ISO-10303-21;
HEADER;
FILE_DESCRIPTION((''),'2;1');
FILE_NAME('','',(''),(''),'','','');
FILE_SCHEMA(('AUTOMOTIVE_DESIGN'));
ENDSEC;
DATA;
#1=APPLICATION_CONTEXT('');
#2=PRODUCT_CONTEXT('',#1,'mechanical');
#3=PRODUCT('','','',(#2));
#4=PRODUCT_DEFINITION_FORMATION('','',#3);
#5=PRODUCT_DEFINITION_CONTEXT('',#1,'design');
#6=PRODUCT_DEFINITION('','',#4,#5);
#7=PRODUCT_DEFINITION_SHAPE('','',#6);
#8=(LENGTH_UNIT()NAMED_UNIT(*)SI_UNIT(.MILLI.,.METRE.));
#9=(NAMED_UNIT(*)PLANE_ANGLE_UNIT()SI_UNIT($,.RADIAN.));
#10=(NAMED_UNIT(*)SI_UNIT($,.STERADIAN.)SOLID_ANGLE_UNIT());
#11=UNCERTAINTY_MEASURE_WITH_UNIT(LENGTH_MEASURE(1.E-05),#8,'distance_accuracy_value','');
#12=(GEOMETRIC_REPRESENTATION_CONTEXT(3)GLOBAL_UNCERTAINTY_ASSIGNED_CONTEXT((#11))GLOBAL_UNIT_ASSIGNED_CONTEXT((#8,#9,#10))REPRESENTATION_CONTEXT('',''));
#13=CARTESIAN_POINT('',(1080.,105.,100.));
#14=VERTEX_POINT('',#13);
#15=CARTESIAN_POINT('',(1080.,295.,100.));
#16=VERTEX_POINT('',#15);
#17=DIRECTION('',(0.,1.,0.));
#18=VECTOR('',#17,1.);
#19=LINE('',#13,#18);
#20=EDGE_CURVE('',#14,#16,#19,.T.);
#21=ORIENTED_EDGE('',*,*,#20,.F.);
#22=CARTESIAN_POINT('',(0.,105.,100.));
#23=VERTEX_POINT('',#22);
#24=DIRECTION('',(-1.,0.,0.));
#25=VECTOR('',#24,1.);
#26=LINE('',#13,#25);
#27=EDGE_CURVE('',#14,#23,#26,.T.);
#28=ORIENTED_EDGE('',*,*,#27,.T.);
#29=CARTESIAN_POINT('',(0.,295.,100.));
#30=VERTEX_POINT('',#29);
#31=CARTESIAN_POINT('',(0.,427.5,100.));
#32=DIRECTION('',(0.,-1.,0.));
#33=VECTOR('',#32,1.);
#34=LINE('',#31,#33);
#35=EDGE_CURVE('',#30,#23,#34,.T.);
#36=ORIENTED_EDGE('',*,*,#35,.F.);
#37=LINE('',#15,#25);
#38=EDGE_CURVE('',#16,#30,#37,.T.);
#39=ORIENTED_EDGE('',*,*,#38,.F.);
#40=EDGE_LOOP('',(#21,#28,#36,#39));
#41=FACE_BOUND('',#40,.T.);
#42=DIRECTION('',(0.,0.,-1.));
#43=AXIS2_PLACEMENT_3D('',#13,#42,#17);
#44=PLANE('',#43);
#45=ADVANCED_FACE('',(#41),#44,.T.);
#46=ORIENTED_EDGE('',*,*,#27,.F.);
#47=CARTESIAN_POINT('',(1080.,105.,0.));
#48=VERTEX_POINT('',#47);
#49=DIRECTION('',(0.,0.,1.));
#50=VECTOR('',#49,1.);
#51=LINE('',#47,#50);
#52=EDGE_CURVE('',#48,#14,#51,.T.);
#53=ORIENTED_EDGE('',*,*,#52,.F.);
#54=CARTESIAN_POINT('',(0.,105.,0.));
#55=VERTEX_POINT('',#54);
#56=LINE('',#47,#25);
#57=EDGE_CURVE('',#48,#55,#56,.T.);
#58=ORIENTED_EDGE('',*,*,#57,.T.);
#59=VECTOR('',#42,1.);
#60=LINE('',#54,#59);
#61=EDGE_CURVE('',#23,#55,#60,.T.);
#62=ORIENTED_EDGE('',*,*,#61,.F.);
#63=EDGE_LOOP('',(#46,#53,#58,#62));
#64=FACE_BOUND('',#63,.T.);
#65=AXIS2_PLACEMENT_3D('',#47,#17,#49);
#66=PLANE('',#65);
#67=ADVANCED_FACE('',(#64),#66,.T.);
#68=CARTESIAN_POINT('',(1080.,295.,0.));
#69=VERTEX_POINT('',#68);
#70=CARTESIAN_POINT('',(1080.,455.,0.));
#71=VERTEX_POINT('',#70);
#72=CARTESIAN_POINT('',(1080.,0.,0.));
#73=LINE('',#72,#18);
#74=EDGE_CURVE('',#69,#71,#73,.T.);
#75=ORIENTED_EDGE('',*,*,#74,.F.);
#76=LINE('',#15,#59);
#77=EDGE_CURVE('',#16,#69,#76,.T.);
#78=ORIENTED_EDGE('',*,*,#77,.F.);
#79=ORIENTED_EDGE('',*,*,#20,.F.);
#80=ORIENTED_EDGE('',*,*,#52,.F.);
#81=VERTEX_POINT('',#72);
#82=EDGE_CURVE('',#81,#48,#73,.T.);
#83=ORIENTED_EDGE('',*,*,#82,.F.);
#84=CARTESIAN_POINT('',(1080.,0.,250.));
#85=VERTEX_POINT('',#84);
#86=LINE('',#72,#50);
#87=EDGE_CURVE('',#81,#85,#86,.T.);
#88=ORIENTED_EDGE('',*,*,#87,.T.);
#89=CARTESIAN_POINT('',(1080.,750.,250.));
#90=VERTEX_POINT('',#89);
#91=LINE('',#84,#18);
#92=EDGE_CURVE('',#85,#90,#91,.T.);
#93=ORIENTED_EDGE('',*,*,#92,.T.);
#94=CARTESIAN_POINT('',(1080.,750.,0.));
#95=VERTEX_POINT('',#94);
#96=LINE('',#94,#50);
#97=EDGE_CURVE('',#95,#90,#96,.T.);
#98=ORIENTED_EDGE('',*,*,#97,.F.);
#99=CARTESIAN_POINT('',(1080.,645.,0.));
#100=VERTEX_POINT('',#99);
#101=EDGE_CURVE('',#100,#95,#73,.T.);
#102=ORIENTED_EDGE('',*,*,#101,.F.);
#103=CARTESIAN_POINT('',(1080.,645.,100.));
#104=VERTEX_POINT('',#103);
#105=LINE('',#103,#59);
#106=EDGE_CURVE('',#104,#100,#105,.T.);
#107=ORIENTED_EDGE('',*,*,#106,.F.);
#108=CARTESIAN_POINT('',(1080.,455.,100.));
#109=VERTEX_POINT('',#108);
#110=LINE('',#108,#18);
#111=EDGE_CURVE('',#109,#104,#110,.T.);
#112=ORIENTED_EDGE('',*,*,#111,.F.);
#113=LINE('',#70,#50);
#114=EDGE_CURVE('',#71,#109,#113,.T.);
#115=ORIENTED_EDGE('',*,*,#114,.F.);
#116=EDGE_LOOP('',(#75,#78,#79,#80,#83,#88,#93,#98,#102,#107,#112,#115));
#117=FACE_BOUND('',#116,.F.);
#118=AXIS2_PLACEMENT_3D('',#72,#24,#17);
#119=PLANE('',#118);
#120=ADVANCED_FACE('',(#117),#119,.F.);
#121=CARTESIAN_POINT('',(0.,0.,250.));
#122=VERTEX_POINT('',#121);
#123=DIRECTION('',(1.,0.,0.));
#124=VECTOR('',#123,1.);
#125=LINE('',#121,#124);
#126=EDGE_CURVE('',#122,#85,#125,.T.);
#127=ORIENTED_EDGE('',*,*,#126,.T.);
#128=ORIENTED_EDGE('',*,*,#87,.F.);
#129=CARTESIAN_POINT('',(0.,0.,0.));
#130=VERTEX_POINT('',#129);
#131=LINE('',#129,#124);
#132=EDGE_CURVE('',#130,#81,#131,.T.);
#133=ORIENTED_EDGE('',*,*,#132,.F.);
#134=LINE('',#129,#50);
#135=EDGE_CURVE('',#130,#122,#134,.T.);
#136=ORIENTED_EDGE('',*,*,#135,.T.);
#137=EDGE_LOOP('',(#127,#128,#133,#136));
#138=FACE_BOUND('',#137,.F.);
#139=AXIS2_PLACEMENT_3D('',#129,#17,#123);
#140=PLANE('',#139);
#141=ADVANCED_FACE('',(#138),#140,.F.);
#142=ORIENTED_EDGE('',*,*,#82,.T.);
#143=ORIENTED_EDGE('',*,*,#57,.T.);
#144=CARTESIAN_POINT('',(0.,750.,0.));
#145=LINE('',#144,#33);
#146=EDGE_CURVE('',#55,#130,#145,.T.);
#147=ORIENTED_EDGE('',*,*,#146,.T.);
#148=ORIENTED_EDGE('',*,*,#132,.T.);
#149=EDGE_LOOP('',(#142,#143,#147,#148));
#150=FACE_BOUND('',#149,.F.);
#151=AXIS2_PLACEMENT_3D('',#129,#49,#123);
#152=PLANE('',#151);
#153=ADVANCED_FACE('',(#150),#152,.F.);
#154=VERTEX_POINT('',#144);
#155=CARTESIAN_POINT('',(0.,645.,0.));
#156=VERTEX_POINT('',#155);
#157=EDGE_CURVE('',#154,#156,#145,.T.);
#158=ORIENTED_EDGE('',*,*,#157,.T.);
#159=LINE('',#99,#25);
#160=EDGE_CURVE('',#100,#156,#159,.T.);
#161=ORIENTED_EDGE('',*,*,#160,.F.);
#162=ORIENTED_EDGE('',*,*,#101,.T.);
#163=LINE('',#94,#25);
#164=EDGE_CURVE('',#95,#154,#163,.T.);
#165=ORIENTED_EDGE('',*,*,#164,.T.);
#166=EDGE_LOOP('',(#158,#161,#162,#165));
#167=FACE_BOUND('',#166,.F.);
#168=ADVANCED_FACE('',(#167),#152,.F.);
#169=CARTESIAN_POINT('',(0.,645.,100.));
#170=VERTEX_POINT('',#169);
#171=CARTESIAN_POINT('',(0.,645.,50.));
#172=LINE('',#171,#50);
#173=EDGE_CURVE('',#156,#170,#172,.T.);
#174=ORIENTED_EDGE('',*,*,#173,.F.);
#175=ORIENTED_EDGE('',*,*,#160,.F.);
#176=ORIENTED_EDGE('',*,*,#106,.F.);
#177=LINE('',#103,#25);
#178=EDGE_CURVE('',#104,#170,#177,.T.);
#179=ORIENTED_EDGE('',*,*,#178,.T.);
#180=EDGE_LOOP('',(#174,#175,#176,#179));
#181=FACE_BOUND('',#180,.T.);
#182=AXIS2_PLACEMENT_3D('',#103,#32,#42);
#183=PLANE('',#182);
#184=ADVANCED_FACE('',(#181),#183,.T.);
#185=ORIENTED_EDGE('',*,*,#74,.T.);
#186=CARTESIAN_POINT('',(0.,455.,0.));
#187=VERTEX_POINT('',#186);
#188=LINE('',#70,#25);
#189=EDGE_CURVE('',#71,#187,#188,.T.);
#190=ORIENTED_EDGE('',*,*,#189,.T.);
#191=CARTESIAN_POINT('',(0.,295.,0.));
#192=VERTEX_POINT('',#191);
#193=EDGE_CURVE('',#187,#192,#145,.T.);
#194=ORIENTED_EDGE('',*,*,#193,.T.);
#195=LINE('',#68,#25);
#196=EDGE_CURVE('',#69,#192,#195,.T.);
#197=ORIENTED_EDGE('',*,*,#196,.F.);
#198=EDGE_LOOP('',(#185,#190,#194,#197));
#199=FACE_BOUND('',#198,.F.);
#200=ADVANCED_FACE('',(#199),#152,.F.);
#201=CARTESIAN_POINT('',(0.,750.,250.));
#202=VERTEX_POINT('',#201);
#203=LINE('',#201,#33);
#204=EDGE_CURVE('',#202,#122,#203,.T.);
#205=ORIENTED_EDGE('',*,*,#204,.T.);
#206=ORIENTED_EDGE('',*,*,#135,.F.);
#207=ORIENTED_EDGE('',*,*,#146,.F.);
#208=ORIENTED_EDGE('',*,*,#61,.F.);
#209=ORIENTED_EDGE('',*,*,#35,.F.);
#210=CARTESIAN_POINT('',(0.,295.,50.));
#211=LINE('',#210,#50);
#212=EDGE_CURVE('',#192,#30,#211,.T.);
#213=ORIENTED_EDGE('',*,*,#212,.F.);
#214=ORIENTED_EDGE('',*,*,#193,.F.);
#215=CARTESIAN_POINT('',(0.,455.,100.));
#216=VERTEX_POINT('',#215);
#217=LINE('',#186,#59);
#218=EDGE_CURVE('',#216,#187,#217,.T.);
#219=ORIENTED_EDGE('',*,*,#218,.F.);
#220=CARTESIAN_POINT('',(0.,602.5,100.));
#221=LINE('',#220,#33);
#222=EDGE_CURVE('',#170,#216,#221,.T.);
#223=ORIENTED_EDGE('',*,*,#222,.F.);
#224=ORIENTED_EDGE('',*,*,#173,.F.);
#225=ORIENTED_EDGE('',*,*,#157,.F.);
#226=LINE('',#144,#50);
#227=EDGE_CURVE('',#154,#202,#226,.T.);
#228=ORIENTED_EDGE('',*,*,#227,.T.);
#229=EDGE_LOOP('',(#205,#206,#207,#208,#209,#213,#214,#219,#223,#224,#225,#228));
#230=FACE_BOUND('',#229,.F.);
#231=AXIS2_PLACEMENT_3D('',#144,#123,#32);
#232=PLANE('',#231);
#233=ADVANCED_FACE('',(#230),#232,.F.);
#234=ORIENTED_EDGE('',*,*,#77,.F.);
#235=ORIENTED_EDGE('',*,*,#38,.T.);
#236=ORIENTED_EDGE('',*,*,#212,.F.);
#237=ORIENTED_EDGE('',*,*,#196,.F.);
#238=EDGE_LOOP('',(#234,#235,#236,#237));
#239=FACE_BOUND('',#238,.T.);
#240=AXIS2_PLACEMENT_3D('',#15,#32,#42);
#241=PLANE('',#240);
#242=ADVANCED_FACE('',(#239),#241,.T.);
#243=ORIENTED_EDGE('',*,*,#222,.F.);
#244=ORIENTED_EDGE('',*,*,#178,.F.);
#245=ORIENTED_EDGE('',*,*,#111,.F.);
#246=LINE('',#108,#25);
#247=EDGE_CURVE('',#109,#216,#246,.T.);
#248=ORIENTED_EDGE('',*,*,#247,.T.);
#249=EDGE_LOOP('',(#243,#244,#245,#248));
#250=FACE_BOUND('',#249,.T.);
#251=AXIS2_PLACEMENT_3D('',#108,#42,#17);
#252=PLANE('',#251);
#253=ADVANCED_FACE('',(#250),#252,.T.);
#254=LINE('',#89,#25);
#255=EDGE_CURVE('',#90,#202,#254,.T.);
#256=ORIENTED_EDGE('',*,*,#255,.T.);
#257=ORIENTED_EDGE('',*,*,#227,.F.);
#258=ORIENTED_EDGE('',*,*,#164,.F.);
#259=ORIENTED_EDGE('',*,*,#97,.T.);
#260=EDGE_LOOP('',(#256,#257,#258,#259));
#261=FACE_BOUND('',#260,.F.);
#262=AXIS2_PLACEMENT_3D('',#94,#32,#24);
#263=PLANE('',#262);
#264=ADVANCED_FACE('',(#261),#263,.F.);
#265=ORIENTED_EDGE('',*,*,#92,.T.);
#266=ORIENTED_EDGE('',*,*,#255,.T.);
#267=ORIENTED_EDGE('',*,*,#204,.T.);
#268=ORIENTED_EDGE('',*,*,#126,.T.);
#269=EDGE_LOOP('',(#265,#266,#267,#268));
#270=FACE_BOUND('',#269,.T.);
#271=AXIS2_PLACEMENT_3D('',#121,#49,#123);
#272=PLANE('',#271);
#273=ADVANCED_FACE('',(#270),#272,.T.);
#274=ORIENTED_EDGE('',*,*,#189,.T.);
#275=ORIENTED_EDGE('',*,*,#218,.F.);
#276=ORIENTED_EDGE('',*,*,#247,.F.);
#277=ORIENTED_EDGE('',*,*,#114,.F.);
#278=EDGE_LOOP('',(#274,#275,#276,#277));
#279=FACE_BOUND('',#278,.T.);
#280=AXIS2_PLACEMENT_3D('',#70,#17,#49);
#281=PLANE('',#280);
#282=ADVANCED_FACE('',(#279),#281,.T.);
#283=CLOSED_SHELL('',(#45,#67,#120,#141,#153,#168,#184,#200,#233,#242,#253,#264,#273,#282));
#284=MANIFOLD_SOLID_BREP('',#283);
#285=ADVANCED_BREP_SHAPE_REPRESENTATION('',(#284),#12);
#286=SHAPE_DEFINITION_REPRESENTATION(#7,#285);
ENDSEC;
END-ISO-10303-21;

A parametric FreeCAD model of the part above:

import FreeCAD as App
import Part
import Sketcher
Q = App.Units.Quantity

doc = App.newDocument("Part")
body = doc.addObject("PartDesign::Body", "Body")

# Sketch on XY plane
sketch1 = body.newObject("Sketcher::SketchObject", "Sketch")
sketch1.AttachmentSupport = (doc.getObject("XY_Plane"), [""])
sketch1.MapMode = "FlatFace"
sketch1.addGeometry(Part.LineSegment(App.Vector(0, 750, 0), App.Vector(0, 0, 0)), False)
sketch1.addGeometry(Part.LineSegment(App.Vector(0, 0, 0), App.Vector(1080, 0, 0)), False)
sketch1.addGeometry(Part.LineSegment(App.Vector(1080, 0, 0), App.Vector(1080, 750, 0)), False)
sketch1.addGeometry(Part.LineSegment(App.Vector(1080, 750, 0), App.Vector(0, 750, 0)), False)
sketch1.addConstraint(Sketcher.Constraint("Coincident", 0, 2, 1, 1))
sketch1.addConstraint(Sketcher.Constraint("Coincident", 1, 2, 2, 1))
sketch1.addConstraint(Sketcher.Constraint("Coincident", 2, 2, 3, 1))
sketch1.addConstraint(Sketcher.Constraint("Coincident", 3, 2, 0, 1))
sketch1.addConstraint(Sketcher.Constraint("Vertical", 0))
sketch1.addConstraint(Sketcher.Constraint("Horizontal", 1))
sketch1.addConstraint(Sketcher.Constraint("Vertical", 2))
sketch1.addConstraint(Sketcher.Constraint("Horizontal", 3))
sketch1.addConstraint(Sketcher.Constraint("Coincident", 0, 2, -1, 1))
sketch1.addConstraint(Sketcher.Constraint("DistanceX", 1, 1, 1, 2, Q("1080 mm")))
sketch1.addConstraint(Sketcher.Constraint("DistanceY", 0, 2, 0, 1, Q("750 mm")))
pad1 = body.newObject("PartDesign::Pad", "Pad")
pad1.Profile = sketch1
pad1.Length = 250

# Sketch on YZ plane
sketch2 = body.newObject("Sketcher::SketchObject", "Sketch001")
sketch2.AttachmentSupport = (doc.getObject("YZ_Plane"), [""])
sketch2.MapMode = "FlatFace"
sketch2.AttachmentOffset = App.Placement(App.Vector(0, 0, 1080), App.Rotation())
sketch2.addGeometry(Part.LineSegment(App.Vector(455, 100, 0), App.Vector(455, 0, 0)), False)
sketch2.addGeometry(Part.LineSegment(App.Vector(455, 0, 0), App.Vector(645, 0, 0)), False)
sketch2.addGeometry(Part.LineSegment(App.Vector(645, 0, 0), App.Vector(645, 100, 0)), False)
sketch2.addGeometry(Part.LineSegment(App.Vector(645, 100, 0), App.Vector(455, 100, 0)), False)
sketch2.addConstraint(Sketcher.Constraint("Coincident", 0, 2, 1, 1))
sketch2.addConstraint(Sketcher.Constraint("Coincident", 1, 2, 2, 1))
sketch2.addConstraint(Sketcher.Constraint("Coincident", 2, 2, 3, 1))
sketch2.addConstraint(Sketcher.Constraint("Coincident", 3, 2, 0, 1))
sketch2.addConstraint(Sketcher.Constraint("Vertical", 0))
sketch2.addConstraint(Sketcher.Constraint("Horizontal", 1))
sketch2.addConstraint(Sketcher.Constraint("Vertical", 2))
sketch2.addConstraint(Sketcher.Constraint("Horizontal", 3))
sketch2.addConstraint(Sketcher.Constraint("PointOnObject", 0, 2, -1))
sketch2.addConstraint(Sketcher.Constraint("DistanceX", 1, 1, 1, 2, Q("190 mm")))
sketch2.addConstraint(Sketcher.Constraint("DistanceY", 0, 2, 0, 1, Q("100 mm")))
sketch2.addConstraint(Sketcher.Constraint("DistanceX", -1, 1, 0, 2, Q("455 mm")))
pocket1 = body.newObject("PartDesign::Pocket", "Pocket")
pocket1.Profile = sketch2
pocket1.Type = "UpToFirst"

# Sketch on YZ plane
sketch3 = body.newObject("Sketcher::SketchObject", "Sketch002")
sketch3.AttachmentSupport = (doc.getObject("YZ_Plane"), [""])
sketch3.MapMode = "FlatFace"
sketch3.AttachmentOffset = App.Placement(App.Vector(0, 0, 1080), App.Rotation())
sketch3.addGeometry(Part.LineSegment(App.Vector(105, 100, 0), App.Vector(105, 0, 0)), False)
sketch3.addGeometry(Part.LineSegment(App.Vector(105, 0, 0), App.Vector(295, 0, 0)), False)
sketch3.addGeometry(Part.LineSegment(App.Vector(295, 0, 0), App.Vector(295, 100, 0)), False)
sketch3.addGeometry(Part.LineSegment(App.Vector(295, 100, 0), App.Vector(105, 100, 0)), False)
sketch3.addConstraint(Sketcher.Constraint("Coincident", 0, 2, 1, 1))
sketch3.addConstraint(Sketcher.Constraint("Coincident", 1, 2, 2, 1))
sketch3.addConstraint(Sketcher.Constraint("Coincident", 2, 2, 3, 1))
sketch3.addConstraint(Sketcher.Constraint("Coincident", 3, 2, 0, 1))
sketch3.addConstraint(Sketcher.Constraint("Vertical", 0))
sketch3.addConstraint(Sketcher.Constraint("Horizontal", 1))
sketch3.addConstraint(Sketcher.Constraint("Vertical", 2))
sketch3.addConstraint(Sketcher.Constraint("Horizontal", 3))
sketch3.addConstraint(Sketcher.Constraint("PointOnObject", 0, 2, -1))
sketch3.addConstraint(Sketcher.Constraint("DistanceX", 1, 1, 1, 2, Q("190 mm")))
sketch3.addConstraint(Sketcher.Constraint("DistanceY", 0, 2, 0, 1, Q("100 mm")))
sketch3.addConstraint(Sketcher.Constraint("DistanceX", -1, 1, 0, 2, Q("105 mm")))
pocket2 = body.newObject("PartDesign::Pocket", "Pocket001")
pocket2.Profile = sketch3
pocket2.Type = "UpToFirst"

doc.recompute()
